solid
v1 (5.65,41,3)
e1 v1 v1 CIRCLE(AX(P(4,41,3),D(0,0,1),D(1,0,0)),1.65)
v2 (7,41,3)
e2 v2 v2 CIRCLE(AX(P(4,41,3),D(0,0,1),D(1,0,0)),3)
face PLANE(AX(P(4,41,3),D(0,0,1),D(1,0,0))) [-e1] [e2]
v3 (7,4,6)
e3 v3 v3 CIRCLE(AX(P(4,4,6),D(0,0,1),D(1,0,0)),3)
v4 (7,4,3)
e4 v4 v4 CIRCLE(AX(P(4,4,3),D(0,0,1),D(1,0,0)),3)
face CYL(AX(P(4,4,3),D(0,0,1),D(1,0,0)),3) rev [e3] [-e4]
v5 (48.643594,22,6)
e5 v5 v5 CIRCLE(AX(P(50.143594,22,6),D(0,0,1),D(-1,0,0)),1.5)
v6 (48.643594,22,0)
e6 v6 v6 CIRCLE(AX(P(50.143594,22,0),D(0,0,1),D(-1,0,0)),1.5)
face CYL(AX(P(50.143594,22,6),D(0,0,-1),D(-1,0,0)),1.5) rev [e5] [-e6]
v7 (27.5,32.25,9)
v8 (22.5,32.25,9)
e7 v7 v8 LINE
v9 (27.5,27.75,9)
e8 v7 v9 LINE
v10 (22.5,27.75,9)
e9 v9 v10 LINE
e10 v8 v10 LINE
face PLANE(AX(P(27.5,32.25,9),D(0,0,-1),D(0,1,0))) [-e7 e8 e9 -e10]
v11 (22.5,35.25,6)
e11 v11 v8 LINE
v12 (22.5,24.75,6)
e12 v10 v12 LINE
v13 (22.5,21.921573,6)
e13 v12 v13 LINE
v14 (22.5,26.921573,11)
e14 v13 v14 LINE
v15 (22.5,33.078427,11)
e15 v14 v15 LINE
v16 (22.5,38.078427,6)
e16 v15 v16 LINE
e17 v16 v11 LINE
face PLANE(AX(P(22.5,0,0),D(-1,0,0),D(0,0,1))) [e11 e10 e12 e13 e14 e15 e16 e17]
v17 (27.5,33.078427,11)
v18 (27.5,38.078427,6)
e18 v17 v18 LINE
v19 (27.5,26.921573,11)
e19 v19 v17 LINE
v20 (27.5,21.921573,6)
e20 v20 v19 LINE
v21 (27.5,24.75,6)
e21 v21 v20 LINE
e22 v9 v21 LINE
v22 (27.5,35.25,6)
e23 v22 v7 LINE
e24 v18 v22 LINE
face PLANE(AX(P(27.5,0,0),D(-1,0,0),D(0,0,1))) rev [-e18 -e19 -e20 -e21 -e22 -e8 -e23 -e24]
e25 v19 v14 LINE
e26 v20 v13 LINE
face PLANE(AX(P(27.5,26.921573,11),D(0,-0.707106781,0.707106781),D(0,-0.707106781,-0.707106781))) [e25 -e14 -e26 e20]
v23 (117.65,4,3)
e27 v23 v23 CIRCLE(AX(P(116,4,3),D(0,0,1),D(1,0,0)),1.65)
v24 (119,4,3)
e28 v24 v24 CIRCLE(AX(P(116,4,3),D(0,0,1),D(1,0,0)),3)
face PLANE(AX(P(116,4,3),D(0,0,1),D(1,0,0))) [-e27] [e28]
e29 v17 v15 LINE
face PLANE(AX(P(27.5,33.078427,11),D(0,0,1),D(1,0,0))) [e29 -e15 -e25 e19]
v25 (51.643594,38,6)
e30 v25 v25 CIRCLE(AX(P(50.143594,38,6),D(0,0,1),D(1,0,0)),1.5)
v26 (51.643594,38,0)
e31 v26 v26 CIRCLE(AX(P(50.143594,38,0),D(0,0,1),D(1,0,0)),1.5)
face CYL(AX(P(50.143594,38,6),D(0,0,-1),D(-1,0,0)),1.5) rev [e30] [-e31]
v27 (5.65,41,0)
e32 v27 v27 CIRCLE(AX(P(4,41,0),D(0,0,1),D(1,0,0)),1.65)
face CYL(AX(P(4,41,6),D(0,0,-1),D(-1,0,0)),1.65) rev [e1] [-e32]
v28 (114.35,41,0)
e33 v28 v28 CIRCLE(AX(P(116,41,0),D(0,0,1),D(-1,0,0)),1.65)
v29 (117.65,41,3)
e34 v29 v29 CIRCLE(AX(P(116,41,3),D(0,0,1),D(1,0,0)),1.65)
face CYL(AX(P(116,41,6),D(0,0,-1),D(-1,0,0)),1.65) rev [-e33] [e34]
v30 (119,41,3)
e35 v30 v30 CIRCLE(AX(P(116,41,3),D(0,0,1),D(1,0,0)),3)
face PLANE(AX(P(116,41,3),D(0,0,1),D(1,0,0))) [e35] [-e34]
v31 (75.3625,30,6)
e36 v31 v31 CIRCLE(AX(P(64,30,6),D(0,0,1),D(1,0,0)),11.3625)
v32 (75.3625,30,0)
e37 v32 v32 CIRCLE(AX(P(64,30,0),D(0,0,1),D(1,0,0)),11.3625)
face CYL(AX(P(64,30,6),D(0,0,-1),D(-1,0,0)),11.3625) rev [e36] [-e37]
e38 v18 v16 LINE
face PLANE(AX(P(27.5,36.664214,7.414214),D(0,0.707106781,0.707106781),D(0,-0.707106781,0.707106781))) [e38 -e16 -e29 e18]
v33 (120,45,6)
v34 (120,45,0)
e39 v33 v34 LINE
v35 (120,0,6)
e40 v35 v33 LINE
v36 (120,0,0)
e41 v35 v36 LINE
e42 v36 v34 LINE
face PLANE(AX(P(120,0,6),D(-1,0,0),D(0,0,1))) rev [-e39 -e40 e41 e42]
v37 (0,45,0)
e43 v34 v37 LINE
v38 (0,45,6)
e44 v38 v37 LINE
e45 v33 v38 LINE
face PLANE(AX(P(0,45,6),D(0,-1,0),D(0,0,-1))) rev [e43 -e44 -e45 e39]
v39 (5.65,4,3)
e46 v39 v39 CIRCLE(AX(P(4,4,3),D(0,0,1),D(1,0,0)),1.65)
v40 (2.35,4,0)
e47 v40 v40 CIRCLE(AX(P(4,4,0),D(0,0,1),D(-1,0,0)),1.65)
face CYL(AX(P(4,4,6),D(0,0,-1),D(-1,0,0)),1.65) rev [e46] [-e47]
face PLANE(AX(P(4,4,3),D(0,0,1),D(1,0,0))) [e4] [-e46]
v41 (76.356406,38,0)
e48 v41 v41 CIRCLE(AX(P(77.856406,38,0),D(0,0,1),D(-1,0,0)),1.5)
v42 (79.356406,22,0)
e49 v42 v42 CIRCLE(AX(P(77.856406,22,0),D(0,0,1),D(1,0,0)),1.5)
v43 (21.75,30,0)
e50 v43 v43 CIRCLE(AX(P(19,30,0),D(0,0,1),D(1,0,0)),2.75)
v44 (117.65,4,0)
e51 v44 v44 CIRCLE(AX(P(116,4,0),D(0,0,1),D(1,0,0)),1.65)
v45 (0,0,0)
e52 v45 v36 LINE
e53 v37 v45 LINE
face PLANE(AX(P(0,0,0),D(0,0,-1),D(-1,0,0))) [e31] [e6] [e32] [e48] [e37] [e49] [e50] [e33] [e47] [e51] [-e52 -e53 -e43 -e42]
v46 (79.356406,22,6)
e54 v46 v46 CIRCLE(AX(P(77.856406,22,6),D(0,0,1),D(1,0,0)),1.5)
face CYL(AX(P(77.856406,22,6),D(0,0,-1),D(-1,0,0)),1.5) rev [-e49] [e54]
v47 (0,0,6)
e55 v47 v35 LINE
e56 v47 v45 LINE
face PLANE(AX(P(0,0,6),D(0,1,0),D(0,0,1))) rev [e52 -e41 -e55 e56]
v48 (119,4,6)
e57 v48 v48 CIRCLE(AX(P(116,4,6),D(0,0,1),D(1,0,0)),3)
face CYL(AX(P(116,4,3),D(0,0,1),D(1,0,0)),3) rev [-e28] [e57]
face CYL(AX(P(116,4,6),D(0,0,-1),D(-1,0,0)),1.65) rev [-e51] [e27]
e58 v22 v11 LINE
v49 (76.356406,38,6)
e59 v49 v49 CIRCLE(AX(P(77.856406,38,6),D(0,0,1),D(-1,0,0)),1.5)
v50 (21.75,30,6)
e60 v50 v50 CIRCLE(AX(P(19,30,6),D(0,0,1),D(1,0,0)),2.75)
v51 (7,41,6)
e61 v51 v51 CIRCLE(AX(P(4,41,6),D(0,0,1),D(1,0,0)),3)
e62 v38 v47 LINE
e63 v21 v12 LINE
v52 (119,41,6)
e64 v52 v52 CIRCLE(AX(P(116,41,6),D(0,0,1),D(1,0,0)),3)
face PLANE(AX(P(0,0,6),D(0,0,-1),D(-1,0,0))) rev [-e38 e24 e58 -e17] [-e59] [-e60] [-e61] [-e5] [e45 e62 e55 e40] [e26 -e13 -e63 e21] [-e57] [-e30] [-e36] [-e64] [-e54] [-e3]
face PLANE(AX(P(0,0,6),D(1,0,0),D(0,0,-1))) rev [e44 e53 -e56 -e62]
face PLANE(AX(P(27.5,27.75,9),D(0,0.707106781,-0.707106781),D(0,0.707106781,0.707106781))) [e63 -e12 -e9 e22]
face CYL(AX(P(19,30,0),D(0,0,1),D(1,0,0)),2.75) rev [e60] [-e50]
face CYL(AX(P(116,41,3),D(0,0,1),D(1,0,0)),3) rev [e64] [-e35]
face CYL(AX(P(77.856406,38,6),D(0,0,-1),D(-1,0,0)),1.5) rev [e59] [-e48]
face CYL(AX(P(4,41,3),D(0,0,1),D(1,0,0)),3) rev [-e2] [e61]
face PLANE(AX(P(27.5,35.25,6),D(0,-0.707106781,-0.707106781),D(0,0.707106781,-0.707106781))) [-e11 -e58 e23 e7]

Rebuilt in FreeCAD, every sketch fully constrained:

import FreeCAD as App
import Part
import Sketcher

V = App.Vector
Q = App.Units.Quantity


def add_polygon(sketch, points):
    """Adds a closed chain of lines whose ends are joined by coincident constraints."""
    first, n = sketch.GeometryCount, len(points)
    for a, b in zip(points, points[1:] + points[:1]):
        sketch.addGeometry(Part.LineSegment(App.Vector(*a, 0), App.Vector(*b, 0)), False)
    for i in range(n):
        sketch.addConstraint(Sketcher.Constraint("Coincident", first + i, 2, first + (i + 1) % n, 1))

doc = App.newDocument("Part")
body = doc.addObject("PartDesign::Body", "Body")

sketch1 = body.newObject("Sketcher::SketchObject", "Sketch")
sketch1.AttachmentSupport = (doc.getObject("XY_Plane"), [""])
sketch1.MapMode = "FlatFace"
add_polygon(sketch1, [(0, 45), (0, 0), (120, 0), (120, 45)])
sketch1.addGeometry(Part.Circle(V(4, 4, 0), V(0, 0, 1), 1.6), False)
sketch1.addGeometry(Part.Circle(V(50.1, 22, 0), V(0, 0, 1), 1.5), False)
sketch1.addGeometry(Part.Circle(V(116, 4, 0), V(0, 0, 1), 1.6), False)
sketch1.addGeometry(Part.Circle(V(77.9, 22, 0), V(0, 0, 1), 1.5), False)
sketch1.addGeometry(Part.Circle(V(4, 41, 0), V(0, 0, 1), 1.6), False)
sketch1.addGeometry(Part.Circle(V(50.1, 38, 0), V(0, 0, 1), 1.5), False)
sketch1.addGeometry(Part.Circle(V(64, 30, 0), V(0, 0, 1), 11.4), False)
sketch1.addGeometry(Part.Circle(V(77.9, 38, 0), V(0, 0, 1), 1.5), False)
sketch1.addGeometry(Part.Circle(V(116, 41, 0), V(0, 0, 1), 1.6), False)
sketch1.addConstraint([
    Sketcher.Constraint("Vertical", 0),
    Sketcher.Constraint("Horizontal", 1),
    Sketcher.Constraint("Vertical", 2),
    Sketcher.Constraint("Horizontal", 3),
    Sketcher.Constraint("Coincident", 0, 2, -1, 1),
    Sketcher.Constraint("Equal", 4, 6),
    Sketcher.Constraint("Equal", 5, 7),
    Sketcher.Constraint("Equal", 6, 8),
    Sketcher.Constraint("Equal", 7, 9),
    Sketcher.Constraint("Equal", 9, 11),
    Sketcher.Constraint("Equal", 8, 12),
    Sketcher.Constraint("Horizontal", 4, 3, 6, 3),
    Sketcher.Constraint("Horizontal", 5, 3, 7, 3),
    Sketcher.Constraint("Horizontal", 9, 3, 11, 3),
    Sketcher.Constraint("Horizontal", 8, 3, 12, 3),
    Sketcher.Constraint("Vertical", 4, 3, 8, 3),
    Sketcher.Constraint("Vertical", 5, 3, 9, 3),
    Sketcher.Constraint("Vertical", 7, 3, 11, 3),
    Sketcher.Constraint("Vertical", 6, 3, 12, 3),
    Sketcher.Constraint("Diameter", 5, Q("3 mm")),
    Sketcher.Constraint("Diameter", 4, Q("3.3 mm")),
    Sketcher.Constraint("DistanceX", 1, 1, 1, 2, Q("120 mm")),
    Sketcher.Constraint("DistanceY", 0, 2, 0, 1, Q("45 mm")),
    Sketcher.Constraint("Diameter", 10, Q("22.725 mm")),
    Sketcher.Constraint("DistanceX", -1, 1, 4, 3, Q("4 mm")),
    Sketcher.Constraint("DistanceY", -1, 1, 4, 3, Q("4 mm")),
    Sketcher.Constraint("DistanceY", -1, 1, 5, 3, Q("22 mm")),
    Sketcher.Constraint("DistanceX", -1, 1, 6, 3, Q("116 mm")),
    Sketcher.Constraint("DistanceY", -1, 1, 8, 3, Q("41 mm")),
    Sketcher.Constraint("DistanceY", -1, 1, 9, 3, Q("38 mm")),
    Sketcher.Constraint("DistanceX", -1, 1, 10, 3, Q("64 mm")),
    Sketcher.Constraint("DistanceY", -1, 1, 10, 3, Q("30 mm")),
    Sketcher.Constraint("DistanceX", -1, 1, 5, 3, Q("50.143594 mm")),
    Sketcher.Constraint("DistanceX", -1, 1, 7, 3, Q("77.856406 mm")),
])
pad1 = body.newObject("PartDesign::Pad", "Pad")
pad1.Profile = sketch1
pad1.Length = 6

sketch2 = body.newObject("Sketcher::SketchObject", "Sketch001")
sketch2.AttachmentSupport = (doc.getObject("XY_Plane"), [""])
sketch2.MapMode = "FlatFace"
sketch2.AttachmentOffset = App.Placement(V(0, 0, 3), App.Rotation())
sketch2.addGeometry([
    Part.Circle(V(4, 41, 0), V(0, 0, 1), 3),
    Part.Circle(V(4, 41, 0), V(0, 0, 1), 1.6),
    Part.Circle(V(4, 4, 0), V(0, 0, 1), 3),
    Part.Circle(V(4, 4, 0), V(0, 0, 1), 1.6),
    Part.Circle(V(116, 4, 0), V(0, 0, 1), 3),
    Part.Circle(V(116, 4, 0), V(0, 0, 1), 1.6),
    Part.Circle(V(116, 41, 0), V(0, 0, 1), 3),
    Part.Circle(V(116, 41, 0), V(0, 0, 1), 1.6),
], False)
sketch2.addConstraint([
    Sketcher.Constraint("Coincident", 1, 3, 0, 3),
    Sketcher.Constraint("Coincident", 3, 3, 2, 3),
    Sketcher.Constraint("Coincident", 5, 3, 4, 3),
    Sketcher.Constraint("Coincident", 7, 3, 6, 3),
    Sketcher.Constraint("Equal", 0, 2),
    Sketcher.Constraint("Equal", 1, 3),
    Sketcher.Constraint("Equal", 2, 4),
    Sketcher.Constraint("Equal", 3, 5),
    Sketcher.Constraint("Equal", 4, 6),
    Sketcher.Constraint("Equal", 5, 7),
    Sketcher.Constraint("Horizontal", 3, 3, 4, 3),
    Sketcher.Constraint("Horizontal", 1, 3, 6, 3),
    Sketcher.Constraint("Vertical", 1, 3, 2, 3),
    Sketcher.Constraint("Vertical", 5, 3, 6, 3),
    Sketcher.Constraint("Diameter", 0, Q("6 mm")),
    Sketcher.Constraint("Diameter", 1, Q("3.3 mm")),
    Sketcher.Constraint("DistanceX", -1, 1, 0, 3, Q("4 mm")),
    Sketcher.Constraint("DistanceY", -1, 1, 0, 3, Q("41 mm")),
    Sketcher.Constraint("DistanceY", -1, 1, 2, 3, Q("4 mm")),
    Sketcher.Constraint("DistanceX", -1, 1, 4, 3, Q("116 mm")),
])
pocket1 = body.newObject("PartDesign::Pocket", "Pocket")
pocket1.Profile = sketch2
pocket1.Length = 3
pocket1.Reversed = True

sketch3 = body.newObject("Sketcher::SketchObject", "Sketch002")
sketch3.AttachmentSupport = (doc.getObject("XY_Plane"), [""])
sketch3.MapMode = "FlatFace"
sketch3.AttachmentOffset = App.Placement(V(0, 0, 6), App.Rotation())
sketch3.addGeometry(Part.Circle(V(19, 30, 0), V(0, 0, 1), 2.8), False)
sketch3.addConstraint([
    Sketcher.Constraint("Diameter", 0, Q("5.5 mm")),
    Sketcher.Constraint("DistanceX", -1, 1, 0, 3, Q("19 mm")),
    Sketcher.Constraint("DistanceY", -1, 1, 0, 3, Q("30 mm")),
])
pocket2 = body.newObject("PartDesign::Pocket", "Pocket001")
pocket2.Profile = sketch3
pocket2.Type = "ThroughAll"

sketch4 = body.newObject("Sketcher::SketchObject", "Sketch003")
sketch4.AttachmentSupport = (doc.getObject("YZ_Plane"), [""])
sketch4.MapMode = "FlatFace"
sketch4.AttachmentOffset = App.Placement(V(0, 0, 22.5), App.Rotation())
add_polygon(sketch4, [(35.2, 6), (32.2, 9), (27.8, 9), (24.8, 6), (21.9, 6), (23.3, 7.4), (26.9, 11), (33.1, 11), (36.7, 7.4), (38.1, 6)])
sketch4.addConstraint([
    Sketcher.Constraint("Horizontal", 1),
    Sketcher.Constraint("Horizontal", 3),
    Sketcher.Constraint("Horizontal", 6),
    Sketcher.Constraint("Horizontal", 9),
    Sketcher.Constraint("Perpendicular", 0, 2),
    Sketcher.Constraint("Parallel", 2, 4),
    Sketcher.Constraint("Parallel", 4, 5),
    Sketcher.Constraint("Perpendicular", 5, 7),
    Sketcher.Constraint("Parallel", 7, 8),
    Sketcher.Constraint("Horizontal", 4, 2, 7, 2),
    Sketcher.Constraint("Horizontal", 3, 2, 8, 2),
    Sketcher.Constraint("Equal", 3, 9),
    Sketcher.Constraint("Equal", 0, 2),
    Sketcher.Constraint("Distance", 4, Q("2 mm")),
    Sketcher.Constraint("DistanceX", 1, 2, 1, 1, Q("4.5 mm")),
    Sketcher.Constraint("DistanceY", -1, 1, 0, 2, Q("9 mm")),
    Sketcher.Constraint("DistanceY", -1, 1, 2, 2, Q("6 mm")),
    Sketcher.Constraint("DistanceY", -1, 1, 5, 2, Q("11 mm")),
    Sketcher.Constraint("DistanceX", -1, 1, 0, 2, Q("32.25 mm")),
    Sketcher.Constraint("DistanceX", 3, 2, 3, 1, Q("2.828427 mm")),
])
pad2 = body.newObject("PartDesign::Pad", "Pad001")
pad2.Profile = sketch4
pad2.Length = 5

doc.recompute()
